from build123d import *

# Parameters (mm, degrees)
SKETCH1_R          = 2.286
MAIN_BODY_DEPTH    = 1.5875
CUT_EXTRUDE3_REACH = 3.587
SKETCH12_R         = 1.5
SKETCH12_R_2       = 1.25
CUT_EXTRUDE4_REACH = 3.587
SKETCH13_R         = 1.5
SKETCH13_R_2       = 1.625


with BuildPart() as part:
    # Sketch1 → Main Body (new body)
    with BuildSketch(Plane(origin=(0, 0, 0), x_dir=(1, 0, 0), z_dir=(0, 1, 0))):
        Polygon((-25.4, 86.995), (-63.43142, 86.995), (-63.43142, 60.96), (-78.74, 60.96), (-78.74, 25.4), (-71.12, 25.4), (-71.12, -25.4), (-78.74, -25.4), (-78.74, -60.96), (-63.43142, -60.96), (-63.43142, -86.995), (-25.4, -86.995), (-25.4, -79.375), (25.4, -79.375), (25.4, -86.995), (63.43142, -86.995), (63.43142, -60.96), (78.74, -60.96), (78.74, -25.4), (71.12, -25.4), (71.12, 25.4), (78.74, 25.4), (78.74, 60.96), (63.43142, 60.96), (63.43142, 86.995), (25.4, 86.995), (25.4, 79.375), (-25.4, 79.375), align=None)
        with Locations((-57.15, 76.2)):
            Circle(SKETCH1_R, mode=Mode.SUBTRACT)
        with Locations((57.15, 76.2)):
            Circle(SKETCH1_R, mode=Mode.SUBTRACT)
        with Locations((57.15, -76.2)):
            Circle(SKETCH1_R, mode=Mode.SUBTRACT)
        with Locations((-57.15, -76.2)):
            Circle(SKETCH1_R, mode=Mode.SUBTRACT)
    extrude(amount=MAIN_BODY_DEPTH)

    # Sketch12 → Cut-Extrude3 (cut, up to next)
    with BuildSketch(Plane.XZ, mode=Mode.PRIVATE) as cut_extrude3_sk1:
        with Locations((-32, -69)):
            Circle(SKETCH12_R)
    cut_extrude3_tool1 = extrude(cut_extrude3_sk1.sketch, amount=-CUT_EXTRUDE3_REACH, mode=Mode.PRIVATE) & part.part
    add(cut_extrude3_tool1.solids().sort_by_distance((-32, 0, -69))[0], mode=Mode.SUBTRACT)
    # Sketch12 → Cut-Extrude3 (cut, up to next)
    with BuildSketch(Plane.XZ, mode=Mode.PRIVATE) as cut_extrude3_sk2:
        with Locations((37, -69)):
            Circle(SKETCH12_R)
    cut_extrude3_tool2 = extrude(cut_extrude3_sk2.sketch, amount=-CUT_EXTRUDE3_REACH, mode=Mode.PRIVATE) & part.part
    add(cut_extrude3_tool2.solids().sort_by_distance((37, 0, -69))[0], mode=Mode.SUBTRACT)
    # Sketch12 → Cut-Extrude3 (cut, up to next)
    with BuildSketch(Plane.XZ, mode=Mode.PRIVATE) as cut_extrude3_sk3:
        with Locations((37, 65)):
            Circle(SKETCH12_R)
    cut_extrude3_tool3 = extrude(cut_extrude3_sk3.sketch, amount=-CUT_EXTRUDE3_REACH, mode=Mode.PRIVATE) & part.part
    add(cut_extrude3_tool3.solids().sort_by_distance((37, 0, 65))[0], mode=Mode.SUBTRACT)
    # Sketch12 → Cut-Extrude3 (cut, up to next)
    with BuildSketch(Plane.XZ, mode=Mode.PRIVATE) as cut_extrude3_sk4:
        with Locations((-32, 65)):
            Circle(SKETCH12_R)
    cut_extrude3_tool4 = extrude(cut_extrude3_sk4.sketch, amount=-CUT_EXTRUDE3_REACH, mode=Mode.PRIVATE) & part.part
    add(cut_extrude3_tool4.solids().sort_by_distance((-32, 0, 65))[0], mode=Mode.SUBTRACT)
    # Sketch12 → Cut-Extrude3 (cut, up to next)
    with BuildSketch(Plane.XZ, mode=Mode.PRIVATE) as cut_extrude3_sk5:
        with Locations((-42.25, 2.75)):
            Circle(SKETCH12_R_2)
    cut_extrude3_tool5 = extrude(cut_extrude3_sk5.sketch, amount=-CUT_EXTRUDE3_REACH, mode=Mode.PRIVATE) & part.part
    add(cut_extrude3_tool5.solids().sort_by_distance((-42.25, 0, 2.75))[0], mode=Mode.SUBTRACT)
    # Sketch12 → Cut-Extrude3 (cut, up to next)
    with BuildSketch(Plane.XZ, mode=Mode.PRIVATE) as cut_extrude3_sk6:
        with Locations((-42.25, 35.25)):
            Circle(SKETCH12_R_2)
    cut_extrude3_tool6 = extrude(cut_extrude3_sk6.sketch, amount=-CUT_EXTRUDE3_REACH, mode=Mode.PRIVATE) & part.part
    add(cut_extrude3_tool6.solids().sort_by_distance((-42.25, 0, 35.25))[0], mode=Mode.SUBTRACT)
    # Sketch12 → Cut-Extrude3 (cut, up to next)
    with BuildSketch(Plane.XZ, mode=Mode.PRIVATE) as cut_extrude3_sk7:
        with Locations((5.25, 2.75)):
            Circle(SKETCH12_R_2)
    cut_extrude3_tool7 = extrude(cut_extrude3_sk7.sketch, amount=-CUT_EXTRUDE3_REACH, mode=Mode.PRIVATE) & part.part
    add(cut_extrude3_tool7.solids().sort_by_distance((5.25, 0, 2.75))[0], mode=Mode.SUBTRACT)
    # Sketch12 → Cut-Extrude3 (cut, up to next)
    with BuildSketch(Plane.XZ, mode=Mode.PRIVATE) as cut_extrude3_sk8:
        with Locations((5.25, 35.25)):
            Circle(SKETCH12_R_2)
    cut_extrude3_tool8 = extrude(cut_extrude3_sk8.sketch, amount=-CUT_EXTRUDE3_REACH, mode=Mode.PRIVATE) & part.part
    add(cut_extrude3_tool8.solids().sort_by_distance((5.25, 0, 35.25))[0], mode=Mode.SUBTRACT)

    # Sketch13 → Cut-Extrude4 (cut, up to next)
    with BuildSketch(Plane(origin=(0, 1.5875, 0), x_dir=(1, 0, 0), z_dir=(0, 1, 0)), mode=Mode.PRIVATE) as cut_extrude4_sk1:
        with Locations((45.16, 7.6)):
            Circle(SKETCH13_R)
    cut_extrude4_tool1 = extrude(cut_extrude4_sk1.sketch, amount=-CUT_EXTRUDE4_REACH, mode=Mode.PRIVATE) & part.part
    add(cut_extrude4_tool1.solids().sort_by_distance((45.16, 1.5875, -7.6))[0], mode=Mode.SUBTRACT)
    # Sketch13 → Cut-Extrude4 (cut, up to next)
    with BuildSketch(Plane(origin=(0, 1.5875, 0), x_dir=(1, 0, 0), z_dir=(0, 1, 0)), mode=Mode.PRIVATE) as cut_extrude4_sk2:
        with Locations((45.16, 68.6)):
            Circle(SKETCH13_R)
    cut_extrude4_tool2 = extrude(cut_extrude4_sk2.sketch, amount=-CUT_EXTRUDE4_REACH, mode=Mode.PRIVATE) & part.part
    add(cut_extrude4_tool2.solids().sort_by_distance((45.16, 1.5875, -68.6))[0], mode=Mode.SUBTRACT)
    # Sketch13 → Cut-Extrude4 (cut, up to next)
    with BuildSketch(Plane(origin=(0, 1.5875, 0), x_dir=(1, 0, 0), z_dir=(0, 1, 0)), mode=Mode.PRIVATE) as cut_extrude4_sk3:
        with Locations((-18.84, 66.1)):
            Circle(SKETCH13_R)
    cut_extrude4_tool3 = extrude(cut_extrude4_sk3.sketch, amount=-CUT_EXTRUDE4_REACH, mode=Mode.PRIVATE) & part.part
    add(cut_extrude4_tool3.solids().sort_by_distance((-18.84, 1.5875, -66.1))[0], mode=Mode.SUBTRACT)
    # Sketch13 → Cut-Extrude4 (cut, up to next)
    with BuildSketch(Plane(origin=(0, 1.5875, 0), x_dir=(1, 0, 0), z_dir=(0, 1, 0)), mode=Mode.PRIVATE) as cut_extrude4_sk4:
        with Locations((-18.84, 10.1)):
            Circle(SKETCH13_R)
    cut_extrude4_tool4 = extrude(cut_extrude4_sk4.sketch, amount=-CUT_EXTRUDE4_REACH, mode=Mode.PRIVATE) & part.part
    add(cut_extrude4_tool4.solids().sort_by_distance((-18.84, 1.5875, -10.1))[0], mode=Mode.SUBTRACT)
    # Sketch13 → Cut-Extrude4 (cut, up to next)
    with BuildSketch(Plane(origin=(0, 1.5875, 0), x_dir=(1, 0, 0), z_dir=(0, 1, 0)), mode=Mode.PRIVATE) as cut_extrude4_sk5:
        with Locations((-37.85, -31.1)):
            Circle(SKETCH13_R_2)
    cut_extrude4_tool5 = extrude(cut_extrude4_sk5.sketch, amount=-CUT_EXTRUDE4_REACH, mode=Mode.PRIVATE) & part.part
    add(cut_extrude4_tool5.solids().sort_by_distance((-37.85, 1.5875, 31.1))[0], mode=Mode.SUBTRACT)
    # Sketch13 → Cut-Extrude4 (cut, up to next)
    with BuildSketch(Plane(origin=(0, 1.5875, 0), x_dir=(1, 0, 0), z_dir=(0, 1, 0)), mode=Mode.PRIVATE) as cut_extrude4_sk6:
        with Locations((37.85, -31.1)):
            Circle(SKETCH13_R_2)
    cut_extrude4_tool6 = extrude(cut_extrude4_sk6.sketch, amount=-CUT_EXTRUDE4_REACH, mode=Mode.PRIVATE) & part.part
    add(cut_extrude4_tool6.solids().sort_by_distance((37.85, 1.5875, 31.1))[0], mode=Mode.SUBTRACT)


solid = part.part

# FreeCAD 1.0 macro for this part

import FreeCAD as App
import Part
import Sketcher
Q = App.Units.Quantity


def add_polygon(sketch, points):
    """Adds a closed chain of lines whose ends are joined by coincident constraints."""
    first, n = sketch.GeometryCount, len(points)
    for a, b in zip(points, points[1:] + points[:1]):
        sketch.addGeometry(Part.LineSegment(App.Vector(*a, 0), App.Vector(*b, 0)), False)
    for i in range(n):
        sketch.addConstraint(Sketcher.Constraint("Coincident", first + i, 2, first + (i + 1) % n, 1))

doc = App.newDocument("Part")
body = doc.addObject("PartDesign::Body", "Body")

# Sketch on XZ plane
sketch1 = body.newObject("Sketcher::SketchObject", "Sketch")
sketch1.AttachmentSupport = (doc.getObject("XZ_Plane"), [""])
sketch1.MapMode = "FlatFace"
add_polygon(sketch1, [(-25.4, -86.995), (-63.43142, -86.995), (-63.43142, -60.96), (-78.74, -60.96), (-78.74, -25.4), (-71.12, -25.4), (-71.12, 25.4), (-78.74, 25.4), (-78.74, 60.96), (-63.43142, 60.96), (-63.43142, 86.995), (-25.4, 86.995), (-25.4, 79.375), (25.4, 79.375), (25.4, 86.995), (63.43142, 86.995), (63.43142, 60.96), (78.74, 60.96), (78.74, 25.4), (71.12, 25.4), (71.12, -25.4), (78.74, -25.4), (78.74, -60.96), (63.43142, -60.96), (63.43142, -86.995), (25.4, -86.995), (25.4, -79.375), (-25.4, -79.375)])  # lines 0-27
sketch1.addGeometry(Part.Circle(App.Vector(-57.15, 76.2, 0), App.Vector(0, 0, 1), 2.286), False)  # 28
sketch1.addGeometry(Part.Circle(App.Vector(57.15, 76.2, 0), App.Vector(0, 0, 1), 2.286), False)  # 29
sketch1.addGeometry(Part.Circle(App.Vector(-57.15, -76.2, 0), App.Vector(0, 0, 1), 2.286), False)  # 30
sketch1.addGeometry(Part.Circle(App.Vector(57.15, -76.2, 0), App.Vector(0, 0, 1), 2.286), False)  # 31
sketch1.addConstraint([
    Sketcher.Constraint("Horizontal", 0),
    Sketcher.Constraint("Vertical", 1),
    Sketcher.Constraint("Horizontal", 2),
    Sketcher.Constraint("Vertical", 3),
    Sketcher.Constraint("Horizontal", 4),
    Sketcher.Constraint("Vertical", 5),
    Sketcher.Constraint("Horizontal", 6),
    Sketcher.Constraint("Vertical", 7),
    Sketcher.Constraint("Horizontal", 8),
    Sketcher.Constraint("Vertical", 9),
    Sketcher.Constraint("Horizontal", 10),
    Sketcher.Constraint("Vertical", 11),
    Sketcher.Constraint("Horizontal", 12),
    Sketcher.Constraint("Vertical", 13),
    Sketcher.Constraint("Horizontal", 14),
    Sketcher.Constraint("Vertical", 15),
    Sketcher.Constraint("Horizontal", 16),
    Sketcher.Constraint("Vertical", 17),
    Sketcher.Constraint("Horizontal", 18),
    Sketcher.Constraint("Vertical", 19),
    Sketcher.Constraint("Horizontal", 20),
    Sketcher.Constraint("Vertical", 21),
    Sketcher.Constraint("Horizontal", 22),
    Sketcher.Constraint("Vertical", 23),
    Sketcher.Constraint("Horizontal", 24),
    Sketcher.Constraint("Vertical", 25),
    Sketcher.Constraint("Horizontal", 26),
    Sketcher.Constraint("Vertical", 27),
    Sketcher.Constraint("Equal", 28, 29),
    Sketcher.Constraint("Equal", 29, 30),
    Sketcher.Constraint("Equal", 30, 31),
    Sketcher.Constraint("Symmetric", 29, 3, 30, 3, -1, 1),
    Sketcher.Constraint("Symmetric", 28, 3, 31, 3, -1, 1),
    Sketcher.Constraint("Symmetric", 0, 2, 14, 2, -1, 1),
    Sketcher.Constraint("Symmetric", 2, 2, 16, 2, -1, 1),
    Sketcher.Constraint("Symmetric", 4, 2, 18, 2, -1, 1),
    Sketcher.Constraint("Symmetric", 6, 2, 20, 2, -1, 1),
    Sketcher.Constraint("Symmetric", 8, 2, 22, 2, -1, 1),
    Sketcher.Constraint("Symmetric", 10, 2, 24, 2, -1, 1),
    Sketcher.Constraint("Symmetric", 12, 2, 26, 2, -1, 1),
    Sketcher.Constraint("Symmetric", 28, 3, 29, 3, -2),
    Sketcher.Constraint("Symmetric", 10, 2, 13, 2, -2),
    Sketcher.Constraint("Symmetric", 8, 2, 15, 2, -2),
    Sketcher.Constraint("Symmetric", 6, 2, 17, 2, -2),
    Sketcher.Constraint("Equal", 26, 5),
    Sketcher.Constraint("Equal", 20, 11),
    Sketcher.Constraint("Diameter", 28, Q("0.18 in")),
    Sketcher.Constraint("DistanceX", 12, 1, 12, 2, Q("2 in")),
    Sketcher.Constraint("DistanceX", 4, 1, 4, 2, Q("0.3 in")),
    Sketcher.Constraint("DistanceY", 3, 1, 3, 2, Q("1.4 in")),
    Sketcher.Constraint("DistanceY", -1, 1, 28, 3, Q("3 in")),
    Sketcher.Constraint("DistanceX", 2, 2, -1, 1, Q("3.1 in")),
    Sketcher.Constraint("DistanceX", 28, 3, 29, 3, Q("4.5 in")),
    Sketcher.Constraint("DistanceY", 1, 1, 1, 2, Q("1.025 in")),
    Sketcher.Constraint("DistanceX", 0, 2, 0, 1, Q("1.4973 in")),
])
pad1 = body.newObject("PartDesign::Pad", "Pad")
pad1.Profile = sketch1
pad1.Length = Q("0.0625 in")
pad1.Reversed = True

# Sketch on XZ plane
sketch2 = body.newObject("Sketcher::SketchObject", "Sketch001")
sketch2.AttachmentSupport = (doc.getObject("XZ_Plane"), [""])
sketch2.MapMode = "FlatFace"
sketch2.addGeometry(Part.Circle(App.Vector(-32, -69, 0), App.Vector(0, 0, 1), 1.5), False)
sketch2.addConstraint([
    Sketcher.Constraint("Diameter", 0, Q("3 mm")),
    Sketcher.Constraint("DistanceX", 0, 3, -1, 1, Q("32 mm")),
    Sketcher.Constraint("DistanceY", 0, 3, -1, 1, Q("69 mm")),
])
pocket1 = body.newObject("PartDesign::Pocket", "Pocket")
pocket1.Profile = sketch2
pocket1.Type = "UpToFirst"

# Sketch on XZ plane
sketch3 = body.newObject("Sketcher::SketchObject", "Sketch002")
sketch3.AttachmentSupport = (doc.getObject("XZ_Plane"), [""])
sketch3.MapMode = "FlatFace"
sketch3.addGeometry(Part.Circle(App.Vector(37, -69, 0), App.Vector(0, 0, 1), 1.5), False)
sketch3.addConstraint([
    Sketcher.Constraint("Diameter", 0, Q("3 mm")),
    Sketcher.Constraint("DistanceX", -1, 1, 0, 3, Q("37 mm")),
    Sketcher.Constraint("DistanceY", 0, 3, -1, 1, Q("69 mm")),
])
pocket2 = body.newObject("PartDesign::Pocket", "Pocket001")
pocket2.Profile = sketch3
pocket2.Type = "UpToFirst"

# Sketch on XZ plane
sketch4 = body.newObject("Sketcher::SketchObject", "Sketch003")
sketch4.AttachmentSupport = (doc.getObject("XZ_Plane"), [""])
sketch4.MapMode = "FlatFace"
sketch4.addGeometry(Part.Circle(App.Vector(37, 65, 0), App.Vector(0, 0, 1), 1.5), False)
sketch4.addConstraint([
    Sketcher.Constraint("Diameter", 0, Q("3 mm")),
    Sketcher.Constraint("DistanceX", -1, 1, 0, 3, Q("37 mm")),
    Sketcher.Constraint("DistanceY", -1, 1, 0, 3, Q("65 mm")),
])
pocket3 = body.newObject("PartDesign::Pocket", "Pocket002")
pocket3.Profile = sketch4
pocket3.Type = "UpToFirst"

# Sketch on XZ plane
sketch5 = body.newObject("Sketcher::SketchObject", "Sketch004")
sketch5.AttachmentSupport = (doc.getObject("XZ_Plane"), [""])
sketch5.MapMode = "FlatFace"
sketch5.addGeometry(Part.Circle(App.Vector(-32, 65, 0), App.Vector(0, 0, 1), 1.5), False)
sketch5.addConstraint([
    Sketcher.Constraint("Diameter", 0, Q("3 mm")),
    Sketcher.Constraint("DistanceX", 0, 3, -1, 1, Q("32 mm")),
    Sketcher.Constraint("DistanceY", -1, 1, 0, 3, Q("65 mm")),
])
pocket4 = body.newObject("PartDesign::Pocket", "Pocket003")
pocket4.Profile = sketch5
pocket4.Type = "UpToFirst"

# Sketch on XZ plane
sketch6 = body.newObject("Sketcher::SketchObject", "Sketch005")
sketch6.AttachmentSupport = (doc.getObject("XZ_Plane"), [""])
sketch6.MapMode = "FlatFace"
sketch6.addGeometry(Part.Circle(App.Vector(-42.25, 2.75, 0), App.Vector(0, 0, 1), 1.25), False)
sketch6.addConstraint([
    Sketcher.Constraint("Diameter", 0, Q("2.5 mm")),
    Sketcher.Constraint("DistanceX", 0, 3, -1, 1, Q("42.25 mm")),
    Sketcher.Constraint("DistanceY", -1, 1, 0, 3, Q("2.75 mm")),
])
pocket5 = body.newObject("PartDesign::Pocket", "Pocket004")
pocket5.Profile = sketch6
pocket5.Type = "UpToFirst"

# Sketch on XZ plane
sketch7 = body.newObject("Sketcher::SketchObject", "Sketch006")
sketch7.AttachmentSupport = (doc.getObject("XZ_Plane"), [""])
sketch7.MapMode = "FlatFace"
sketch7.addGeometry(Part.Circle(App.Vector(-42.25, 35.25, 0), App.Vector(0, 0, 1), 1.25), False)
sketch7.addConstraint([
    Sketcher.Constraint("Diameter", 0, Q("2.5 mm")),
    Sketcher.Constraint("DistanceX", 0, 3, -1, 1, Q("42.25 mm")),
    Sketcher.Constraint("DistanceY", -1, 1, 0, 3, Q("35.25 mm")),
])
pocket6 = body.newObject("PartDesign::Pocket", "Pocket005")
pocket6.Profile = sketch7
pocket6.Type = "UpToFirst"

# Sketch on XZ plane
sketch8 = body.newObject("Sketcher::SketchObject", "Sketch007")
sketch8.AttachmentSupport = (doc.getObject("XZ_Plane"), [""])
sketch8.MapMode = "FlatFace"
sketch8.addGeometry(Part.Circle(App.Vector(5.25, 2.75, 0), App.Vector(0, 0, 1), 1.25), False)
sketch8.addConstraint([
    Sketcher.Constraint("Diameter", 0, Q("2.5 mm")),
    Sketcher.Constraint("DistanceX", -1, 1, 0, 3, Q("5.25 mm")),
    Sketcher.Constraint("DistanceY", -1, 1, 0, 3, Q("2.75 mm")),
])
pocket7 = body.newObject("PartDesign::Pocket", "Pocket006")
pocket7.Profile = sketch8
pocket7.Type = "UpToFirst"

# Sketch on XZ plane
sketch9 = body.newObject("Sketcher::SketchObject", "Sketch008")
sketch9.AttachmentSupport = (doc.getObject("XZ_Plane"), [""])
sketch9.MapMode = "FlatFace"
sketch9.addGeometry(Part.Circle(App.Vector(5.25, 35.25, 0), App.Vector(0, 0, 1), 1.25), False)
sketch9.addConstraint([
    Sketcher.Constraint("Diameter", 0, Q("2.5 mm")),
    Sketcher.Constraint("DistanceX", -1, 1, 0, 3, Q("5.25 mm")),
    Sketcher.Constraint("DistanceY", -1, 1, 0, 3, Q("35.25 mm")),
])
pocket8 = body.newObject("PartDesign::Pocket", "Pocket007")
pocket8.Profile = sketch9
pocket8.Type = "UpToFirst"

# Sketch on XZ plane
sketch10 = body.newObject("Sketcher::SketchObject", "Sketch009")
sketch10.AttachmentSupport = (doc.getObject("XZ_Plane"), [""])
sketch10.MapMode = "FlatFace"
sketch10.AttachmentOffset = App.Placement(App.Vector(0, 0, -0.0625 * 25.4), App.Rotation())
sketch10.addGeometry(Part.Circle(App.Vector(45.16, -7.6, 0), App.Vector(0, 0, 1), 1.5), False)
sketch10.addConstraint([
    Sketcher.Constraint("Diameter", 0, Q("3 mm")),
    Sketcher.Constraint("DistanceX", -1, 1, 0, 3, Q("45.16 mm")),
    Sketcher.Constraint("DistanceY", 0, 3, -1, 1, Q("7.6 mm")),
])
pocket9 = body.newObject("PartDesign::Pocket", "Pocket008")
pocket9.Profile = sketch10
pocket9.Type = "UpToFirst"
pocket9.Reversed = True

# Sketch on XZ plane
sketch11 = body.newObject("Sketcher::SketchObject", "Sketch010")
sketch11.AttachmentSupport = (doc.getObject("XZ_Plane"), [""])
sketch11.MapMode = "FlatFace"
sketch11.AttachmentOffset = App.Placement(App.Vector(0, 0, -0.0625 * 25.4), App.Rotation())
sketch11.addGeometry(Part.Circle(App.Vector(45.16, -68.6, 0), App.Vector(0, 0, 1), 1.5), False)
sketch11.addConstraint([
    Sketcher.Constraint("Diameter", 0, Q("3 mm")),
    Sketcher.Constraint("DistanceX", -1, 1, 0, 3, Q("45.16 mm")),
    Sketcher.Constraint("DistanceY", 0, 3, -1, 1, Q("68.6 mm")),
])
pocket10 = body.newObject("PartDesign::Pocket", "Pocket009")
pocket10.Profile = sketch11
pocket10.Type = "UpToFirst"
pocket10.Reversed = True

# Sketch on XZ plane
sketch12 = body.newObject("Sketcher::SketchObject", "Sketch011")
sketch12.AttachmentSupport = (doc.getObject("XZ_Plane"), [""])
sketch12.MapMode = "FlatFace"
sketch12.AttachmentOffset = App.Placement(App.Vector(0, 0, -0.0625 * 25.4), App.Rotation())
sketch12.addGeometry(Part.Circle(App.Vector(-18.84, -66.1, 0), App.Vector(0, 0, 1), 1.5), False)
sketch12.addConstraint([
    Sketcher.Constraint("Diameter", 0, Q("3 mm")),
    Sketcher.Constraint("DistanceX", 0, 3, -1, 1, Q("18.84 mm")),
    Sketcher.Constraint("DistanceY", 0, 3, -1, 1, Q("66.1 mm")),
])
pocket11 = body.newObject("PartDesign::Pocket", "Pocket010")
pocket11.Profile = sketch12
pocket11.Type = "UpToFirst"
pocket11.Reversed = True

# Sketch on XZ plane
sketch13 = body.newObject("Sketcher::SketchObject", "Sketch012")
sketch13.AttachmentSupport = (doc.getObject("XZ_Plane"), [""])
sketch13.MapMode = "FlatFace"
sketch13.AttachmentOffset = App.Placement(App.Vector(0, 0, -0.0625 * 25.4), App.Rotation())
sketch13.addGeometry(Part.Circle(App.Vector(-18.84, -10.1, 0), App.Vector(0, 0, 1), 1.5), False)
sketch13.addConstraint([
    Sketcher.Constraint("Diameter", 0, Q("3 mm")),
    Sketcher.Constraint("DistanceX", 0, 3, -1, 1, Q("18.84 mm")),
    Sketcher.Constraint("DistanceY", 0, 3, -1, 1, Q("10.1 mm")),
])
pocket12 = body.newObject("PartDesign::Pocket", "Pocket011")
pocket12.Profile = sketch13
pocket12.Type = "UpToFirst"
pocket12.Reversed = True

# Sketch on XZ plane
sketch14 = body.newObject("Sketcher::SketchObject", "Sketch013")
sketch14.AttachmentSupport = (doc.getObject("XZ_Plane"), [""])
sketch14.MapMode = "FlatFace"
sketch14.AttachmentOffset = App.Placement(App.Vector(0, 0, -0.0625 * 25.4), App.Rotation())
sketch14.addGeometry(Part.Circle(App.Vector(-37.85, 31.1, 0), App.Vector(0, 0, 1), 1.625), False)
sketch14.addConstraint([
    Sketcher.Constraint("Diameter", 0, Q("3.25 mm")),
    Sketcher.Constraint("DistanceX", 0, 3, -1, 1, Q("37.85 mm")),
    Sketcher.Constraint("DistanceY", -1, 1, 0, 3, Q("31.1 mm")),
])
pocket13 = body.newObject("PartDesign::Pocket", "Pocket012")
pocket13.Profile = sketch14
pocket13.Type = "UpToFirst"
pocket13.Reversed = True

# Sketch on XZ plane
sketch15 = body.newObject("Sketcher::SketchObject", "Sketch014")
sketch15.AttachmentSupport = (doc.getObject("XZ_Plane"), [""])
sketch15.MapMode = "FlatFace"
sketch15.AttachmentOffset = App.Placement(App.Vector(0, 0, -0.0625 * 25.4), App.Rotation())
sketch15.addGeometry(Part.Circle(App.Vector(37.85, 31.1, 0), App.Vector(0, 0, 1), 1.625), False)
sketch15.addConstraint([
    Sketcher.Constraint("Diameter", 0, Q("3.25 mm")),
    Sketcher.Constraint("DistanceX", -1, 1, 0, 3, Q("37.85 mm")),
    Sketcher.Constraint("DistanceY", -1, 1, 0, 3, Q("31.1 mm")),
])
pocket14 = body.newObject("PartDesign::Pocket", "Pocket013")
pocket14.Profile = sketch15
pocket14.Type = "UpToFirst"
pocket14.Reversed = True

doc.recompute()
